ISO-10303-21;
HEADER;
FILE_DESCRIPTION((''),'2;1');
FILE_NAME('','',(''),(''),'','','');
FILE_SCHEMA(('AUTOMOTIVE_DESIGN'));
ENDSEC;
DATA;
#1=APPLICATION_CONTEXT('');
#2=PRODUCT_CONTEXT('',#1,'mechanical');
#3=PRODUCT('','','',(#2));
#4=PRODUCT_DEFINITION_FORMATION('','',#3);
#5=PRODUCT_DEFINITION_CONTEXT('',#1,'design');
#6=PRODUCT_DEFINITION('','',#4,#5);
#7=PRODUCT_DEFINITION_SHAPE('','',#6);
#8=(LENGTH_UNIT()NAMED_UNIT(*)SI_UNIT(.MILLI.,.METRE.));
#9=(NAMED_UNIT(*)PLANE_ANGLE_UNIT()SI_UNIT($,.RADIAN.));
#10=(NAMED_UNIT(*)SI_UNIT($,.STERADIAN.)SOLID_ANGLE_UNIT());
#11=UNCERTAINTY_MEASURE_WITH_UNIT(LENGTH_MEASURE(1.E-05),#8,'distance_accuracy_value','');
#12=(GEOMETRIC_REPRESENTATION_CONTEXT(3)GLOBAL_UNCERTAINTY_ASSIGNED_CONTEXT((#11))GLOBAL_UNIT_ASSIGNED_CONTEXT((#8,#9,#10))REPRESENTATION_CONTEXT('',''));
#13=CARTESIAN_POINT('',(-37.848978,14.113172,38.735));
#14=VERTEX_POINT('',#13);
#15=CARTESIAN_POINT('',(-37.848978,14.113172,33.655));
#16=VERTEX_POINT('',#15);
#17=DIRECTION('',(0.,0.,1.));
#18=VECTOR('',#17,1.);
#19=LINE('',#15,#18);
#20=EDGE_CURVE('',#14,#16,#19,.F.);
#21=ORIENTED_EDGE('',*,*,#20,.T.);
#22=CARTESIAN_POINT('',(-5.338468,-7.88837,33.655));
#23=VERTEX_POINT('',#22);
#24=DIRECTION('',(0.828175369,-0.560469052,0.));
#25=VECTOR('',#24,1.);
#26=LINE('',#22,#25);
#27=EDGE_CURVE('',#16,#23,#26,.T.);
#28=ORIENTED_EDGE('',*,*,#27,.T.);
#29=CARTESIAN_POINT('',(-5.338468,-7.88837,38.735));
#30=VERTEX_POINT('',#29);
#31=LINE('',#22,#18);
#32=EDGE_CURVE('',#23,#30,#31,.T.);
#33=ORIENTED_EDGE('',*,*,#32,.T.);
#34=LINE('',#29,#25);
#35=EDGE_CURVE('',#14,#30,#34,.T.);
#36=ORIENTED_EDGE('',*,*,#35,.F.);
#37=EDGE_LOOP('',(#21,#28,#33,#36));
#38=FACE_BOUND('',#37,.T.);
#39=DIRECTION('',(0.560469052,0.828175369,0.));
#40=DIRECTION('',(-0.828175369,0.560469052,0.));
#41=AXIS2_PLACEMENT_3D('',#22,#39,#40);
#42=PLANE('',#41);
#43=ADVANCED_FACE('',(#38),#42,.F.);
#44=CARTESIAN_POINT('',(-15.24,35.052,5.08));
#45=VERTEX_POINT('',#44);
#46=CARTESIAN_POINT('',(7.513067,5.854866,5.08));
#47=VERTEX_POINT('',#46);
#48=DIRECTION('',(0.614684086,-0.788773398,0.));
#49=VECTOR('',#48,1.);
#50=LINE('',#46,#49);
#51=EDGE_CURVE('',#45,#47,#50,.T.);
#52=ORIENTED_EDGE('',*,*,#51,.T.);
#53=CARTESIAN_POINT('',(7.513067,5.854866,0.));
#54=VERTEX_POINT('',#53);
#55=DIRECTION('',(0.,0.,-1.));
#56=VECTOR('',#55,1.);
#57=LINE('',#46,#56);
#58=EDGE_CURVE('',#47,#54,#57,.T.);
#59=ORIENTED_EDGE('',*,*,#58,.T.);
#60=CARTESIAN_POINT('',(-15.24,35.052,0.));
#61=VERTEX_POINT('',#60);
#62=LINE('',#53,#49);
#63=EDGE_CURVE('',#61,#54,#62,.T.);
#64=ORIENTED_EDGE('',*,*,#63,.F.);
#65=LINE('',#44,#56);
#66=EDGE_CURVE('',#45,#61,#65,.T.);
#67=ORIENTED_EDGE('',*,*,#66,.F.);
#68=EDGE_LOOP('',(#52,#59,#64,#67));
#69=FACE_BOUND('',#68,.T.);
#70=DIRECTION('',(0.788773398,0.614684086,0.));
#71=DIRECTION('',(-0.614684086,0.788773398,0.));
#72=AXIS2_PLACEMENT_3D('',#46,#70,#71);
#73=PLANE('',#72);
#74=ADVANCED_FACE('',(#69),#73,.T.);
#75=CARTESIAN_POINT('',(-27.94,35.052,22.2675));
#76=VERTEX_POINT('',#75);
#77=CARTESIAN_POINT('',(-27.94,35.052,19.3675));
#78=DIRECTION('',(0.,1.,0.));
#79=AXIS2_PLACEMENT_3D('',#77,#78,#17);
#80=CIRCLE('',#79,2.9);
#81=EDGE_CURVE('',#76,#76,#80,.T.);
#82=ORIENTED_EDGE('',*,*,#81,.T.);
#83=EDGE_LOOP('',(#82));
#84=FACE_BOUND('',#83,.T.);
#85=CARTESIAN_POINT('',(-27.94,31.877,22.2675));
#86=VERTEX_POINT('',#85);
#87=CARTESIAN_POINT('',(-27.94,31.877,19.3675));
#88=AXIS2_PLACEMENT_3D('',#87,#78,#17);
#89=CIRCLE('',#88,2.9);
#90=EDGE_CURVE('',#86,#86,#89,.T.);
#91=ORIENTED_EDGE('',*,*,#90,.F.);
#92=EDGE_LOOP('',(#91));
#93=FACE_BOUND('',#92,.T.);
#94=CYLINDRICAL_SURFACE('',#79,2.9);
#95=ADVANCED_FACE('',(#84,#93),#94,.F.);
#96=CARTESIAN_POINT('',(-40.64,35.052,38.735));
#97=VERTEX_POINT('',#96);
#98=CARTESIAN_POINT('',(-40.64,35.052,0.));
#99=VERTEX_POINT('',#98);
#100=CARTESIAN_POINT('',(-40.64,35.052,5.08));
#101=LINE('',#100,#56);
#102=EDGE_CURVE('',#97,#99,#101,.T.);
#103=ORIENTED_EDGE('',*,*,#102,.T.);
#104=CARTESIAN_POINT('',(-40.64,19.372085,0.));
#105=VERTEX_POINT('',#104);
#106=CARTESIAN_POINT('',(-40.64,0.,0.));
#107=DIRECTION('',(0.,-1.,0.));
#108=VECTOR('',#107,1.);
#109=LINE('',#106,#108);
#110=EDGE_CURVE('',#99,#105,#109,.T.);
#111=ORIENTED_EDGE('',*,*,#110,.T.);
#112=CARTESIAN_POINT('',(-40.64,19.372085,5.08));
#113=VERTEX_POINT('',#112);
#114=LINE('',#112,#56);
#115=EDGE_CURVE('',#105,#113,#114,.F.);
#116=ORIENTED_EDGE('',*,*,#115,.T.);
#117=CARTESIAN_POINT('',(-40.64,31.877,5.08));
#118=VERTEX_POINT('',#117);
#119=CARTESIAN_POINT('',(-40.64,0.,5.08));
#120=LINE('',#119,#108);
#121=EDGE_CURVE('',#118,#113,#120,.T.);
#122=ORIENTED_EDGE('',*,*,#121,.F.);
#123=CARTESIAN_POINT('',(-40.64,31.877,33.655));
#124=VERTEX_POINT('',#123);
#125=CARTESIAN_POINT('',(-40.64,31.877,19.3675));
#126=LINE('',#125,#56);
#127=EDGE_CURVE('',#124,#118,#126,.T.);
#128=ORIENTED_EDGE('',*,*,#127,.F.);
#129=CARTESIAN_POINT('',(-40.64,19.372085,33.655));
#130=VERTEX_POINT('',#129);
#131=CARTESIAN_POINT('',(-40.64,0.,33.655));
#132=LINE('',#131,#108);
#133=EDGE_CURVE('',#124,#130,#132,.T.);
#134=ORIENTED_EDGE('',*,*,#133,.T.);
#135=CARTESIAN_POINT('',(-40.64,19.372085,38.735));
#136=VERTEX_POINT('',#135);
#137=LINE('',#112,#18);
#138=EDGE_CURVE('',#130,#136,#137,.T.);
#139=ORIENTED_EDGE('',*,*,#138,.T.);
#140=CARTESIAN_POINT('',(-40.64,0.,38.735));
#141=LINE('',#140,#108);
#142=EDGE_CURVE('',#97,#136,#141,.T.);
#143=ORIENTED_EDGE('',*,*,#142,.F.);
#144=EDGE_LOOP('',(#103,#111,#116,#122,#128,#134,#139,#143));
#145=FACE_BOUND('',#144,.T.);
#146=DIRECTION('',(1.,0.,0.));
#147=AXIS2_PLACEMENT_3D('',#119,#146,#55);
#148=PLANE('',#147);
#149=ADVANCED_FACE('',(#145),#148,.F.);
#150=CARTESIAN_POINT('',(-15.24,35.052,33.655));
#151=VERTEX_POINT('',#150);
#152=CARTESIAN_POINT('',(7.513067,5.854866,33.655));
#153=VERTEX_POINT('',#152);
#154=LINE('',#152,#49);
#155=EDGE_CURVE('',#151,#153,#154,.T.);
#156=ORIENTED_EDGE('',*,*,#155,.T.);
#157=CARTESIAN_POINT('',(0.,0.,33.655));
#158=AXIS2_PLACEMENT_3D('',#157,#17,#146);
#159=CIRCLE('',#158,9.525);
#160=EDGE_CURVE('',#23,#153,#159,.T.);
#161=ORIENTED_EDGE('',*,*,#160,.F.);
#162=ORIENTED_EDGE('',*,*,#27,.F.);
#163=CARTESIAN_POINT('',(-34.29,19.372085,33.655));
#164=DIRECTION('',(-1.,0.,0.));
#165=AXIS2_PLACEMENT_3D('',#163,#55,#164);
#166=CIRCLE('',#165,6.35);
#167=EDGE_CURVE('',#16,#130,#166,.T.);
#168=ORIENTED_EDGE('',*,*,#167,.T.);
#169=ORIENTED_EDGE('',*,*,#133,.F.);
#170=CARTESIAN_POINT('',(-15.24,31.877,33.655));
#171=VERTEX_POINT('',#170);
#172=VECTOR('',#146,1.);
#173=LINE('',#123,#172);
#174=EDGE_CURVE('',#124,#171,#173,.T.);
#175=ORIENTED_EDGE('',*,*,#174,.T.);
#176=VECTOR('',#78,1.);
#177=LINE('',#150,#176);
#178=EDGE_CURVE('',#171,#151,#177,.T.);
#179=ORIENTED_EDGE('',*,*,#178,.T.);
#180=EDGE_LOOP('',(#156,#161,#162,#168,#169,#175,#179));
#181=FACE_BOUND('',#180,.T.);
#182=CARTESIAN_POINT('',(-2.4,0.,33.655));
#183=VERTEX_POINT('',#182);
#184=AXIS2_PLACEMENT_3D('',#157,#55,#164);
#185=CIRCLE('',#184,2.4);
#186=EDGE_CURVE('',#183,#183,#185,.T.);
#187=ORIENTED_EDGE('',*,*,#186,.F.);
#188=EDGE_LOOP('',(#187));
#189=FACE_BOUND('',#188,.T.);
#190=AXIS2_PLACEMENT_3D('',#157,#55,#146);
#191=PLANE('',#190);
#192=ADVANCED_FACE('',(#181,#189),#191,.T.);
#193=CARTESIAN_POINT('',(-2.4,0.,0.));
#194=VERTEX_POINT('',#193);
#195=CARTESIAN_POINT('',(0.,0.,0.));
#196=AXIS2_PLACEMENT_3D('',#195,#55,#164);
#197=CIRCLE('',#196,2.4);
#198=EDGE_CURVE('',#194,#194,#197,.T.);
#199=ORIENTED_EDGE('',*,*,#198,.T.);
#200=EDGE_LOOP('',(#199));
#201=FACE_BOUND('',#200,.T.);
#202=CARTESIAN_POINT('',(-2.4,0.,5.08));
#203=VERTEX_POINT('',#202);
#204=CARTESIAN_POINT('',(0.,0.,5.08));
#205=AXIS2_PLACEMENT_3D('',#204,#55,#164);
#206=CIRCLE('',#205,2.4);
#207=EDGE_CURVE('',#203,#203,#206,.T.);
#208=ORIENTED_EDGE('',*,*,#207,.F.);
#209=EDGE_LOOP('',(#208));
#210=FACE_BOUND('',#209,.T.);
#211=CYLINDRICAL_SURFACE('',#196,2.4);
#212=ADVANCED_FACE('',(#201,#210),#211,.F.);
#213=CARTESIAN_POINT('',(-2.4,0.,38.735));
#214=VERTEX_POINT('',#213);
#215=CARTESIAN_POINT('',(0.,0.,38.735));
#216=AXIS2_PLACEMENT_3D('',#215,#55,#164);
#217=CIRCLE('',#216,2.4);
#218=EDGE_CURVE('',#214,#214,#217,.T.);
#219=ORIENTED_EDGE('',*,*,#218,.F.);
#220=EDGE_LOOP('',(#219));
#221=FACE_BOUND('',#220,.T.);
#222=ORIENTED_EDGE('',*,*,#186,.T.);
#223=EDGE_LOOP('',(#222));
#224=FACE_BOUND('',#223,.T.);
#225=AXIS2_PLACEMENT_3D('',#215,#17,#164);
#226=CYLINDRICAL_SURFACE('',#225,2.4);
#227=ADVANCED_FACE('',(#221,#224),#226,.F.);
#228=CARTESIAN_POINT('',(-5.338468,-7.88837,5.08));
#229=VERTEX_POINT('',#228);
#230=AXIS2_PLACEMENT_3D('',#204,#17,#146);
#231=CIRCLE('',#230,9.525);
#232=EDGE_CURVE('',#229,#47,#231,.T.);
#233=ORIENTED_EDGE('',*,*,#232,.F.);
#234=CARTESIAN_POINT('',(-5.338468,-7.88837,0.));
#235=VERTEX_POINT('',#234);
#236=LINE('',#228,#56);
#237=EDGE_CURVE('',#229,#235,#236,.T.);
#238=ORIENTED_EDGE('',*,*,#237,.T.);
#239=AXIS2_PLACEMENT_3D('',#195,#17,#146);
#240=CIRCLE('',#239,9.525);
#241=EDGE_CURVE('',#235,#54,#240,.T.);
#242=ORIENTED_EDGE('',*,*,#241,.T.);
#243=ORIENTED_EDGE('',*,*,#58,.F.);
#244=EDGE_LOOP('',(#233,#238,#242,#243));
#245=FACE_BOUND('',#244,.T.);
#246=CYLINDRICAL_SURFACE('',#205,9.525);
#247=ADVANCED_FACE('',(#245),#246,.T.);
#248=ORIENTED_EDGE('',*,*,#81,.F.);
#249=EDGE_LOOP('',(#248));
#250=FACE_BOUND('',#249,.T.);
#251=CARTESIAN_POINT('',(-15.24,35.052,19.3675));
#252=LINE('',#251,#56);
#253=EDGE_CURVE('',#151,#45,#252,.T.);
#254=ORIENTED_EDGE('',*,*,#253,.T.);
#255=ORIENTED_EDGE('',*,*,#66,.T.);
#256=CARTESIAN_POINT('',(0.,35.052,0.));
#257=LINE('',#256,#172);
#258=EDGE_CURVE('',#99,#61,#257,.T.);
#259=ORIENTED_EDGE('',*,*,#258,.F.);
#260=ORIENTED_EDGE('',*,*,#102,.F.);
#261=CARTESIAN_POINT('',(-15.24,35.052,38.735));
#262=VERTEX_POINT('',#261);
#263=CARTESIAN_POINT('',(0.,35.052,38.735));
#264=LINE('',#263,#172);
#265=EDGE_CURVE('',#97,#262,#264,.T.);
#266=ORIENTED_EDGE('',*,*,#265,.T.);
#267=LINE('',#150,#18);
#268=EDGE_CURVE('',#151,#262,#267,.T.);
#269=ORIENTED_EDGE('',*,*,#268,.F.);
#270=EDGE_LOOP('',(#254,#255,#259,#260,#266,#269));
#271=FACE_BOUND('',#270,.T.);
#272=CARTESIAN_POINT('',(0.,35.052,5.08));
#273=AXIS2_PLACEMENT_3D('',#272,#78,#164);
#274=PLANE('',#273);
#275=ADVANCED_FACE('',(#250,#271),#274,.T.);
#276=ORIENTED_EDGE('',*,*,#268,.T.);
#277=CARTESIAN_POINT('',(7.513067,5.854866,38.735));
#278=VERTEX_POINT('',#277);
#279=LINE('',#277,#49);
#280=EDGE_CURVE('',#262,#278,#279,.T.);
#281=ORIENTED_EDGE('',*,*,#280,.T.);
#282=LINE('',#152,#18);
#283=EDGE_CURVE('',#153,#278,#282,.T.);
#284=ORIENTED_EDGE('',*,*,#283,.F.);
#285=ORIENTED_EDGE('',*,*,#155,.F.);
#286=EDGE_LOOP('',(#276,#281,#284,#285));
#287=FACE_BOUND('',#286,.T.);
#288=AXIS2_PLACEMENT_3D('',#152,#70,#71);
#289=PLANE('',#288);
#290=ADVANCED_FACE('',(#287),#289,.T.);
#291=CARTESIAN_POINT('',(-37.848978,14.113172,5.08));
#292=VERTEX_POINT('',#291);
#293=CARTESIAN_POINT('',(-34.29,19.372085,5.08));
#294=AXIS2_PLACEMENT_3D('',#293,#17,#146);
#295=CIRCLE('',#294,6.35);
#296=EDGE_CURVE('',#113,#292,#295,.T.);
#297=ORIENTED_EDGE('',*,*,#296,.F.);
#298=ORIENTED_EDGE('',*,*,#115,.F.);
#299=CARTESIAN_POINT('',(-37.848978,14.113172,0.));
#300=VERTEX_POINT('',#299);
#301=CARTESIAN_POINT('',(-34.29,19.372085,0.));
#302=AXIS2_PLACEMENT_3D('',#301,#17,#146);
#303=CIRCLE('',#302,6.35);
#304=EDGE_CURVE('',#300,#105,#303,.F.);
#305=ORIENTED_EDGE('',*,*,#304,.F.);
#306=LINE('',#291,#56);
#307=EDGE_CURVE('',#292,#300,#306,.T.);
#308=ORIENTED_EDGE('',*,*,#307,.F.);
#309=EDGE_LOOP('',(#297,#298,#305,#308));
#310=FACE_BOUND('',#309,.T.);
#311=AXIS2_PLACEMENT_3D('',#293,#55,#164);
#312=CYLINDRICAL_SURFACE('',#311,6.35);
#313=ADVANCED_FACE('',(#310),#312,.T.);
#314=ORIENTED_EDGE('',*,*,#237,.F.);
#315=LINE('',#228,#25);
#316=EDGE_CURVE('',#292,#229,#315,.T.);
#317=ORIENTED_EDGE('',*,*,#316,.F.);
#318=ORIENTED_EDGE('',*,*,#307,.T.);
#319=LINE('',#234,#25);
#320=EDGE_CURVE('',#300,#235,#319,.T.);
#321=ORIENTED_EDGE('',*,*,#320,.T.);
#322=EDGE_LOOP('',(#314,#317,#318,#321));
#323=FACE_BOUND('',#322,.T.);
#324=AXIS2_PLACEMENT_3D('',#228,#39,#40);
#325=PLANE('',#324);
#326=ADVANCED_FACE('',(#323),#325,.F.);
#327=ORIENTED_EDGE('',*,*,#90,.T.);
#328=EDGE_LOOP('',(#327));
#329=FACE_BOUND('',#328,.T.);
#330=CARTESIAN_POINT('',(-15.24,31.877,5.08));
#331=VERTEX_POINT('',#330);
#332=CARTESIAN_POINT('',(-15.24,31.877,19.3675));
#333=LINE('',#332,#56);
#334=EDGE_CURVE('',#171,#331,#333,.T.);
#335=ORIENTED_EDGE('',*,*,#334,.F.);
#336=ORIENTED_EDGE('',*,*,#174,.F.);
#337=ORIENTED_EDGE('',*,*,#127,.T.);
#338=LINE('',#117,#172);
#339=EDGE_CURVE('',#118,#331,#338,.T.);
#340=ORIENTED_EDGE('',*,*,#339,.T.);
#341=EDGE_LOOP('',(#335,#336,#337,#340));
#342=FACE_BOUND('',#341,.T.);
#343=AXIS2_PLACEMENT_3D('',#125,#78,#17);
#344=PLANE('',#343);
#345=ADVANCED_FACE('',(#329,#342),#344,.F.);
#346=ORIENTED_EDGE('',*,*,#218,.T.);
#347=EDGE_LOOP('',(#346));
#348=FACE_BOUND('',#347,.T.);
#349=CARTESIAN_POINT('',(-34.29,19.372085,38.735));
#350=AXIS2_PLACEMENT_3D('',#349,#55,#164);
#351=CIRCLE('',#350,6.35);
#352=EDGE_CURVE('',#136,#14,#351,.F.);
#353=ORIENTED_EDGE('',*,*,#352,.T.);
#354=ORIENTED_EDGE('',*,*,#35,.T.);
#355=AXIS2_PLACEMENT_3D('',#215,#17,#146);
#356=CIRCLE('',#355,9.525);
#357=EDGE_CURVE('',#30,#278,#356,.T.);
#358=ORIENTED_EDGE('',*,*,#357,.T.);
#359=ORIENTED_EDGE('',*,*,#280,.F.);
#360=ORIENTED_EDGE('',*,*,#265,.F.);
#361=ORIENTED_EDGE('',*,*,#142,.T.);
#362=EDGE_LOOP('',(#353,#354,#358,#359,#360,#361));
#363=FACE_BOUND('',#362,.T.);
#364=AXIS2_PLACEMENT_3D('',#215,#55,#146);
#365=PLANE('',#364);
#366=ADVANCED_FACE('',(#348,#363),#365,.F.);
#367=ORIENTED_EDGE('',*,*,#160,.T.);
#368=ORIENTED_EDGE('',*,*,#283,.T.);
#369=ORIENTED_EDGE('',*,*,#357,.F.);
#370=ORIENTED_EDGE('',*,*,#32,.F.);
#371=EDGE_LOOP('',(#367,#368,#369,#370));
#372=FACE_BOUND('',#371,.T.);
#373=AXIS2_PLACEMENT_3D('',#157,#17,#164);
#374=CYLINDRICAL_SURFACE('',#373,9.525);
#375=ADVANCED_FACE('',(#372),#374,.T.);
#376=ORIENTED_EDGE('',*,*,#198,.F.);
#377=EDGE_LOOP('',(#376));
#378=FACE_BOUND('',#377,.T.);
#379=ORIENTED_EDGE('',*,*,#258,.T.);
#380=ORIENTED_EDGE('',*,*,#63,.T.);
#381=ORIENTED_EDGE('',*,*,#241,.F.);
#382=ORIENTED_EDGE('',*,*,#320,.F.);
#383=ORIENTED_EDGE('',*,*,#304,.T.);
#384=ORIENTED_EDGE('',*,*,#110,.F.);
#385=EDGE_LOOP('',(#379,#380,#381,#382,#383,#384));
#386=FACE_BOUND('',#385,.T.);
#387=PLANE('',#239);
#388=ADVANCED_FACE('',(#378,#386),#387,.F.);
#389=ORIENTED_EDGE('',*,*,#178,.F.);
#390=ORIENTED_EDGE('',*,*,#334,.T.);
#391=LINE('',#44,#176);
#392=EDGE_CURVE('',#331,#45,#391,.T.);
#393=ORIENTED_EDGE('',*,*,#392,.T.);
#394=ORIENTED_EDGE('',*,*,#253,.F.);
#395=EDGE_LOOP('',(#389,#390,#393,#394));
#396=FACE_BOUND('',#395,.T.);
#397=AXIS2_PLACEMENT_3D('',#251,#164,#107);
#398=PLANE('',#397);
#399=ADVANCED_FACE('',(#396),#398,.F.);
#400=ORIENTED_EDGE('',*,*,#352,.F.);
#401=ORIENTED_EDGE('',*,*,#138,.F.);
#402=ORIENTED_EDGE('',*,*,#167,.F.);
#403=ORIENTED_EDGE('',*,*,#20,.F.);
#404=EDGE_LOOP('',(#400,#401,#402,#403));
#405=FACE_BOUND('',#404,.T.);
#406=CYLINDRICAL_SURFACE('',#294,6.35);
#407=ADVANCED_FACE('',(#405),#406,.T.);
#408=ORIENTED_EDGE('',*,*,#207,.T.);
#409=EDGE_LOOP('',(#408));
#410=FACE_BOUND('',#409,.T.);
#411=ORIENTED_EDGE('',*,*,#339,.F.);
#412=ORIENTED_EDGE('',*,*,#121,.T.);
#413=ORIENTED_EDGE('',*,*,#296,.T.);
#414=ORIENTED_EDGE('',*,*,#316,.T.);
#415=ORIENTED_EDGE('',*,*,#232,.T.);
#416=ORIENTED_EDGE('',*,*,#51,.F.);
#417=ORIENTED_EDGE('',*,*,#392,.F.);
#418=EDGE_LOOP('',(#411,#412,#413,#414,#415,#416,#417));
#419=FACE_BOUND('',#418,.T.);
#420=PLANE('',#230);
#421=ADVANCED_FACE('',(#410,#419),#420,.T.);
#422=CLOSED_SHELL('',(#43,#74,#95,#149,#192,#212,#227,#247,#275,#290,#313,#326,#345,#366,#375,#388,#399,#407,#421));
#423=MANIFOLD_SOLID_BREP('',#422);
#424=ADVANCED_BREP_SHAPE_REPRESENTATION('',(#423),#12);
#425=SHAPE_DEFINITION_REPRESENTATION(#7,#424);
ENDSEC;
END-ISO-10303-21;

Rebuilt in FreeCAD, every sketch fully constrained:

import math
import FreeCAD as App
import Part
import Sketcher
Q = App.Units.Quantity


def edges_at(feature, points):
    """Names of the edges that pass closest to the given points."""
    edges = feature.Shape.Edges
    near = lambda p: min(range(len(edges)), key=lambda i: edges[i].distToShape(Part.Vertex(*p))[0])
    return sorted({f"Edge{near(p) + 1}" for p in points})

doc = App.newDocument("Part")
params = doc.addObject("Spreadsheet::Sheet", "Params")
for row, (alias, value) in enumerate([
    ("sketch1_width", "1 in"),
    ("sketch1_radius", "0.375 in"),
    ("sketch1_height", "0.75 in"),
    ("pad1_length", "0.2 in"),
    ("hole_diameter", "4.8 mm"),
    ("sketch3_width", "1 in"),
    ("sketch3_height", "0.125 in"),
    ("pad2_length", "0.5625 in"),
    ("hole2_diameter", "5.8 mm"),
    ("fillet_radius", "0.25 in"),
], start=1):
    params.set(f"A{row}", alias)
    params.set(f"B{row}", "=" + value)
    params.setAlias(f"B{row}", alias)

body = doc.addObject("PartDesign::Body", "Body")

sketch1 = body.newObject("Sketcher::SketchObject", "Sketch")
sketch1.AttachmentSupport = (doc.getObject("XY_Plane"), [""])
sketch1.MapMode = "FlatFace"
sketch1.addGeometry([
    Part.LineSegment(App.Vector(-40.64, 35.052, 0), App.Vector(-40.64, 16.002, 0)),
    Part.LineSegment(App.Vector(-40.64, 16.002, 0), App.Vector(-5.338468, -7.88837, 0)),
    Part.ArcOfCircle(Part.Circle(App.Vector(0, 0, 0), App.Vector(0, 0, 1), 9.525), math.radians(-124.088242), math.radians(37.928969)),
    Part.LineSegment(App.Vector(7.513067, 5.854866, 0), App.Vector(-15.24, 35.052, 0)),
    Part.LineSegment(App.Vector(-15.24, 35.052, 0), App.Vector(-40.64, 35.052, 0)),
], False)
sketch1.addConstraint([
    Sketcher.Constraint("Coincident", 0, 2, 1, 1),
    Sketcher.Constraint("Tangent", 1, 2, 2, 1),
    Sketcher.Constraint("Tangent", 2, 2, 3, 1),
    Sketcher.Constraint("Coincident", 3, 2, 4, 1),
    Sketcher.Constraint("Coincident", 4, 2, 0, 1),
    Sketcher.Constraint("Vertical", 0),
    Sketcher.Constraint("Horizontal", 4),
    Sketcher.Constraint("Coincident", 2, 3, -1, 1),
    Sketcher.Constraint("DistanceX", 4, 2, 4, 1, Q("1 in")),
    Sketcher.Constraint("Radius", 2, Q("0.375 in")),
    Sketcher.Constraint("DistanceY", 0, 2, 0, 1, Q("0.75 in")),
    Sketcher.Constraint("DistanceX", 0, 2, -1, 1, Q("1.6 in")),
    Sketcher.Constraint("DistanceY", -1, 1, 0, 2, Q("0.63 in")),
])
sketch1.setExpression("Constraints[8]", "Params.sketch1_width")
sketch1.setExpression("Constraints[9]", "Params.sketch1_radius")
sketch1.setExpression("Constraints[10]", "Params.sketch1_height")
pad1 = body.newObject("PartDesign::Pad", "Pad")
pad1.Profile = sketch1
pad1.setExpression("Length", "Params.pad1_length")

sketch2 = body.newObject("Sketcher::SketchObject", "Sketch001")
sketch2.AttachmentSupport = (doc.getObject("XY_Plane"), [""])
sketch2.MapMode = "FlatFace"
sketch2.addGeometry(Part.Circle(App.Vector(0, 0, 0), App.Vector(0, 0, 1), 2.4), False)
sketch2.addConstraint([
    Sketcher.Constraint("Coincident", 0, 3, -1, 1),
    Sketcher.Constraint("Diameter", 0, Q("4.8 mm")),
])
doc.recompute()
hole = body.newObject("PartDesign::Hole", "Hole")
hole.Profile = sketch2
hole.ThreadType = "None"
hole.setExpression("Diameter", "Params.hole_diameter")
hole.DepthType = "ThroughAll"
hole.Reversed = True

sketch3 = body.newObject("Sketcher::SketchObject", "Sketch002")
sketch3.AttachmentSupport = (doc.getObject("XY_Plane"), [""])
sketch3.MapMode = "FlatFace"
sketch3.AttachmentOffset = App.Placement(App.Vector(0, 0, 0.2 * 25.4), App.Rotation())
sketch3.addGeometry([
    Part.LineSegment(App.Vector(-40.64, 35.052, 0), App.Vector(-40.64, 31.877, 0)),
    Part.LineSegment(App.Vector(-40.64, 31.877, 0), App.Vector(-15.24, 31.877, 0)),
    Part.LineSegment(App.Vector(-15.24, 31.877, 0), App.Vector(-15.24, 35.052, 0)),
    Part.LineSegment(App.Vector(-15.24, 35.052, 0), App.Vector(-40.64, 35.052, 0)),
], False)
sketch3.addConstraint([
    Sketcher.Constraint("Coincident", 0, 2, 1, 1),
    Sketcher.Constraint("Coincident", 1, 2, 2, 1),
    Sketcher.Constraint("Coincident", 2, 2, 3, 1),
    Sketcher.Constraint("Coincident", 3, 2, 0, 1),
    Sketcher.Constraint("Vertical", 0),
    Sketcher.Constraint("Horizontal", 1),
    Sketcher.Constraint("Vertical", 2),
    Sketcher.Constraint("Horizontal", 3),
    Sketcher.Constraint("DistanceX", 1, 1, 1, 2, Q("1 in")),
    Sketcher.Constraint("DistanceX", 0, 2, -1, 1, Q("1.6 in")),
    Sketcher.Constraint("DistanceY", 0, 2, 0, 1, Q("0.125 in")),
    Sketcher.Constraint("DistanceY", -1, 1, 2, 2, Q("1.38 in")),
])
sketch3.setExpression("Constraints[8]", "Params.sketch3_width")
sketch3.setExpression("Constraints[10]", "Params.sketch3_height")
pad2 = body.newObject("PartDesign::Pad", "Pad001")
pad2.Profile = sketch3
pad2.setExpression("Length", "Params.pad2_length")
body2 = doc.addObject("PartDesign::Body", "Body001")
doc.recompute()

body2.BaseFeature = body
doc.recompute()

mirroring = doc.addObject("Part::Mirroring", "Mirroring")
mirroring.Source = body
mirroring.Base = App.Vector(0, 0, 19.3675)
mirroring.Normal = App.Vector(0, 0, 1)
body3 = doc.addObject("PartDesign::Body", "Body002")
body3.BaseFeature = mirroring
boolean = body2.newObject("PartDesign::Boolean", "Boolean")
boolean.Type = "Fuse"
boolean.addObjects([body3])
doc.recompute()

sketch4 = body2.newObject("Sketcher::SketchObject", "Sketch003")
sketch4.AttachmentSupport = (doc.getObject("XZ_Plane001"), [""])
sketch4.MapMode = "FlatFace"
sketch4.AttachmentOffset = App.Placement(App.Vector(0, 0, -1.38 * 25.4), App.Rotation())
sketch4.addGeometry(Part.Circle(App.Vector(-27.94, 19.3675, 0), App.Vector(0, 0, 1), 2.9), False)
sketch4.addConstraint([
    Sketcher.Constraint("DistanceX", 0, 3, -1, 1, Q("1.1 in")),
    Sketcher.Constraint("Diameter", 0, Q("5.8 mm")),
    Sketcher.Constraint("DistanceY", -1, 1, 0, 3, Q("0.7625 in")),
])
doc.recompute()
hole2 = body2.newObject("PartDesign::Hole", "Hole001")
hole2.Profile = sketch4
hole2.ThreadType = "None"
hole2.setExpression("Diameter", "Params.hole2_diameter")
hole2.DepthType = "ThroughAll"
hole2.Reversed = True
doc.recompute()

fillet = body2.newObject("PartDesign::Fillet", "Fillet")
fillet.Base = (hole2, edges_at(hole2, [(-40.64, 16.002, 2.54), (-40.64, 16.002, 36.195)]))
fillet.setExpression("Radius", "Params.fillet_radius")
mirroring.Visibility = False

doc.recompute()
